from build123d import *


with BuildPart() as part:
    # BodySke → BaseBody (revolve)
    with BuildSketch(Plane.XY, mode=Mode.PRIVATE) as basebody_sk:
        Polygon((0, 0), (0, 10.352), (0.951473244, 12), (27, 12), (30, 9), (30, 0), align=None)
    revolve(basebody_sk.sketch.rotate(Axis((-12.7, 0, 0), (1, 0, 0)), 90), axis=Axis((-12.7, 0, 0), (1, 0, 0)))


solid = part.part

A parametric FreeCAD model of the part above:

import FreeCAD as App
import Part
import Sketcher
from FreeCAD import Vector
Q = App.Units.Quantity


def add_polygon(sketch, points):
    """Adds a closed chain of lines whose ends are joined by coincident constraints."""
    first, n = sketch.GeometryCount, len(points)
    for a, b in zip(points, points[1:] + points[:1]):
        sketch.addGeometry(Part.LineSegment(App.Vector(*a, 0), App.Vector(*b, 0)), False)
    for i in range(n):
        sketch.addConstraint(Sketcher.Constraint("Coincident", first + i, 2, first + (i + 1) % n, 1))

doc = App.newDocument("Part")
params = doc.addObject("Spreadsheet::Sheet", "Params")
for row, (alias, value) in enumerate([
    ("sketch1_width", "30 mm"),
    ("sketch1_height", "9 mm"),
    ("revolution_angle", "360 deg"),
], start=1):
    params.set(f"A{row}", alias)
    params.set(f"B{row}", "=" + value)
    params.setAlias(f"B{row}", alias)

body = doc.addObject("PartDesign::Body", "Body")

# Sketch on XY plane
sketch1 = body.newObject("Sketcher::SketchObject", "Sketch")
sketch1.AttachmentSupport = (doc.getObject("XY_Plane"), [""])
sketch1.MapMode = "FlatFace"
add_polygon(sketch1, [(0, 10.4), (0, 0), (30, 0), (30, 9), (27, 12), (1, 12)])  # lines 0-5
sketch1.addConstraint([
    Sketcher.Constraint("Vertical", 0),
    Sketcher.Constraint("Horizontal", 1),
    Sketcher.Constraint("Vertical", 2),
    Sketcher.Constraint("Horizontal", 4),
    Sketcher.Constraint("Coincident", 0, 2, -1, 1),
    Sketcher.Constraint("DistanceX", 1, 1, 1, 2, 30.0),
    Sketcher.Constraint("DistanceY", 2, 1, 2, 2, 9.0),
    Sketcher.Constraint("Angle", 3, Q("135 deg")),
    Sketcher.Constraint("Angle", 5, Q("-120 deg")),
    Sketcher.Constraint("DistanceX", -1, 1, 3, 2, 27.0),
    Sketcher.Constraint("DistanceY", 0, 2, 0, 1, 10.352),
])
sketch1.setExpression("Constraints[11]", "Params.sketch1_width")
sketch1.setExpression("Constraints[12]", "Params.sketch1_height")
revolution = body.newObject("PartDesign::Revolution", "Revolution")
revolution.Profile = sketch1
revolution.ReferenceAxis = (sketch1, ["H_Axis"])
revolution.setExpression("Angle", "Params.revolution_angle")

doc.recompute()
